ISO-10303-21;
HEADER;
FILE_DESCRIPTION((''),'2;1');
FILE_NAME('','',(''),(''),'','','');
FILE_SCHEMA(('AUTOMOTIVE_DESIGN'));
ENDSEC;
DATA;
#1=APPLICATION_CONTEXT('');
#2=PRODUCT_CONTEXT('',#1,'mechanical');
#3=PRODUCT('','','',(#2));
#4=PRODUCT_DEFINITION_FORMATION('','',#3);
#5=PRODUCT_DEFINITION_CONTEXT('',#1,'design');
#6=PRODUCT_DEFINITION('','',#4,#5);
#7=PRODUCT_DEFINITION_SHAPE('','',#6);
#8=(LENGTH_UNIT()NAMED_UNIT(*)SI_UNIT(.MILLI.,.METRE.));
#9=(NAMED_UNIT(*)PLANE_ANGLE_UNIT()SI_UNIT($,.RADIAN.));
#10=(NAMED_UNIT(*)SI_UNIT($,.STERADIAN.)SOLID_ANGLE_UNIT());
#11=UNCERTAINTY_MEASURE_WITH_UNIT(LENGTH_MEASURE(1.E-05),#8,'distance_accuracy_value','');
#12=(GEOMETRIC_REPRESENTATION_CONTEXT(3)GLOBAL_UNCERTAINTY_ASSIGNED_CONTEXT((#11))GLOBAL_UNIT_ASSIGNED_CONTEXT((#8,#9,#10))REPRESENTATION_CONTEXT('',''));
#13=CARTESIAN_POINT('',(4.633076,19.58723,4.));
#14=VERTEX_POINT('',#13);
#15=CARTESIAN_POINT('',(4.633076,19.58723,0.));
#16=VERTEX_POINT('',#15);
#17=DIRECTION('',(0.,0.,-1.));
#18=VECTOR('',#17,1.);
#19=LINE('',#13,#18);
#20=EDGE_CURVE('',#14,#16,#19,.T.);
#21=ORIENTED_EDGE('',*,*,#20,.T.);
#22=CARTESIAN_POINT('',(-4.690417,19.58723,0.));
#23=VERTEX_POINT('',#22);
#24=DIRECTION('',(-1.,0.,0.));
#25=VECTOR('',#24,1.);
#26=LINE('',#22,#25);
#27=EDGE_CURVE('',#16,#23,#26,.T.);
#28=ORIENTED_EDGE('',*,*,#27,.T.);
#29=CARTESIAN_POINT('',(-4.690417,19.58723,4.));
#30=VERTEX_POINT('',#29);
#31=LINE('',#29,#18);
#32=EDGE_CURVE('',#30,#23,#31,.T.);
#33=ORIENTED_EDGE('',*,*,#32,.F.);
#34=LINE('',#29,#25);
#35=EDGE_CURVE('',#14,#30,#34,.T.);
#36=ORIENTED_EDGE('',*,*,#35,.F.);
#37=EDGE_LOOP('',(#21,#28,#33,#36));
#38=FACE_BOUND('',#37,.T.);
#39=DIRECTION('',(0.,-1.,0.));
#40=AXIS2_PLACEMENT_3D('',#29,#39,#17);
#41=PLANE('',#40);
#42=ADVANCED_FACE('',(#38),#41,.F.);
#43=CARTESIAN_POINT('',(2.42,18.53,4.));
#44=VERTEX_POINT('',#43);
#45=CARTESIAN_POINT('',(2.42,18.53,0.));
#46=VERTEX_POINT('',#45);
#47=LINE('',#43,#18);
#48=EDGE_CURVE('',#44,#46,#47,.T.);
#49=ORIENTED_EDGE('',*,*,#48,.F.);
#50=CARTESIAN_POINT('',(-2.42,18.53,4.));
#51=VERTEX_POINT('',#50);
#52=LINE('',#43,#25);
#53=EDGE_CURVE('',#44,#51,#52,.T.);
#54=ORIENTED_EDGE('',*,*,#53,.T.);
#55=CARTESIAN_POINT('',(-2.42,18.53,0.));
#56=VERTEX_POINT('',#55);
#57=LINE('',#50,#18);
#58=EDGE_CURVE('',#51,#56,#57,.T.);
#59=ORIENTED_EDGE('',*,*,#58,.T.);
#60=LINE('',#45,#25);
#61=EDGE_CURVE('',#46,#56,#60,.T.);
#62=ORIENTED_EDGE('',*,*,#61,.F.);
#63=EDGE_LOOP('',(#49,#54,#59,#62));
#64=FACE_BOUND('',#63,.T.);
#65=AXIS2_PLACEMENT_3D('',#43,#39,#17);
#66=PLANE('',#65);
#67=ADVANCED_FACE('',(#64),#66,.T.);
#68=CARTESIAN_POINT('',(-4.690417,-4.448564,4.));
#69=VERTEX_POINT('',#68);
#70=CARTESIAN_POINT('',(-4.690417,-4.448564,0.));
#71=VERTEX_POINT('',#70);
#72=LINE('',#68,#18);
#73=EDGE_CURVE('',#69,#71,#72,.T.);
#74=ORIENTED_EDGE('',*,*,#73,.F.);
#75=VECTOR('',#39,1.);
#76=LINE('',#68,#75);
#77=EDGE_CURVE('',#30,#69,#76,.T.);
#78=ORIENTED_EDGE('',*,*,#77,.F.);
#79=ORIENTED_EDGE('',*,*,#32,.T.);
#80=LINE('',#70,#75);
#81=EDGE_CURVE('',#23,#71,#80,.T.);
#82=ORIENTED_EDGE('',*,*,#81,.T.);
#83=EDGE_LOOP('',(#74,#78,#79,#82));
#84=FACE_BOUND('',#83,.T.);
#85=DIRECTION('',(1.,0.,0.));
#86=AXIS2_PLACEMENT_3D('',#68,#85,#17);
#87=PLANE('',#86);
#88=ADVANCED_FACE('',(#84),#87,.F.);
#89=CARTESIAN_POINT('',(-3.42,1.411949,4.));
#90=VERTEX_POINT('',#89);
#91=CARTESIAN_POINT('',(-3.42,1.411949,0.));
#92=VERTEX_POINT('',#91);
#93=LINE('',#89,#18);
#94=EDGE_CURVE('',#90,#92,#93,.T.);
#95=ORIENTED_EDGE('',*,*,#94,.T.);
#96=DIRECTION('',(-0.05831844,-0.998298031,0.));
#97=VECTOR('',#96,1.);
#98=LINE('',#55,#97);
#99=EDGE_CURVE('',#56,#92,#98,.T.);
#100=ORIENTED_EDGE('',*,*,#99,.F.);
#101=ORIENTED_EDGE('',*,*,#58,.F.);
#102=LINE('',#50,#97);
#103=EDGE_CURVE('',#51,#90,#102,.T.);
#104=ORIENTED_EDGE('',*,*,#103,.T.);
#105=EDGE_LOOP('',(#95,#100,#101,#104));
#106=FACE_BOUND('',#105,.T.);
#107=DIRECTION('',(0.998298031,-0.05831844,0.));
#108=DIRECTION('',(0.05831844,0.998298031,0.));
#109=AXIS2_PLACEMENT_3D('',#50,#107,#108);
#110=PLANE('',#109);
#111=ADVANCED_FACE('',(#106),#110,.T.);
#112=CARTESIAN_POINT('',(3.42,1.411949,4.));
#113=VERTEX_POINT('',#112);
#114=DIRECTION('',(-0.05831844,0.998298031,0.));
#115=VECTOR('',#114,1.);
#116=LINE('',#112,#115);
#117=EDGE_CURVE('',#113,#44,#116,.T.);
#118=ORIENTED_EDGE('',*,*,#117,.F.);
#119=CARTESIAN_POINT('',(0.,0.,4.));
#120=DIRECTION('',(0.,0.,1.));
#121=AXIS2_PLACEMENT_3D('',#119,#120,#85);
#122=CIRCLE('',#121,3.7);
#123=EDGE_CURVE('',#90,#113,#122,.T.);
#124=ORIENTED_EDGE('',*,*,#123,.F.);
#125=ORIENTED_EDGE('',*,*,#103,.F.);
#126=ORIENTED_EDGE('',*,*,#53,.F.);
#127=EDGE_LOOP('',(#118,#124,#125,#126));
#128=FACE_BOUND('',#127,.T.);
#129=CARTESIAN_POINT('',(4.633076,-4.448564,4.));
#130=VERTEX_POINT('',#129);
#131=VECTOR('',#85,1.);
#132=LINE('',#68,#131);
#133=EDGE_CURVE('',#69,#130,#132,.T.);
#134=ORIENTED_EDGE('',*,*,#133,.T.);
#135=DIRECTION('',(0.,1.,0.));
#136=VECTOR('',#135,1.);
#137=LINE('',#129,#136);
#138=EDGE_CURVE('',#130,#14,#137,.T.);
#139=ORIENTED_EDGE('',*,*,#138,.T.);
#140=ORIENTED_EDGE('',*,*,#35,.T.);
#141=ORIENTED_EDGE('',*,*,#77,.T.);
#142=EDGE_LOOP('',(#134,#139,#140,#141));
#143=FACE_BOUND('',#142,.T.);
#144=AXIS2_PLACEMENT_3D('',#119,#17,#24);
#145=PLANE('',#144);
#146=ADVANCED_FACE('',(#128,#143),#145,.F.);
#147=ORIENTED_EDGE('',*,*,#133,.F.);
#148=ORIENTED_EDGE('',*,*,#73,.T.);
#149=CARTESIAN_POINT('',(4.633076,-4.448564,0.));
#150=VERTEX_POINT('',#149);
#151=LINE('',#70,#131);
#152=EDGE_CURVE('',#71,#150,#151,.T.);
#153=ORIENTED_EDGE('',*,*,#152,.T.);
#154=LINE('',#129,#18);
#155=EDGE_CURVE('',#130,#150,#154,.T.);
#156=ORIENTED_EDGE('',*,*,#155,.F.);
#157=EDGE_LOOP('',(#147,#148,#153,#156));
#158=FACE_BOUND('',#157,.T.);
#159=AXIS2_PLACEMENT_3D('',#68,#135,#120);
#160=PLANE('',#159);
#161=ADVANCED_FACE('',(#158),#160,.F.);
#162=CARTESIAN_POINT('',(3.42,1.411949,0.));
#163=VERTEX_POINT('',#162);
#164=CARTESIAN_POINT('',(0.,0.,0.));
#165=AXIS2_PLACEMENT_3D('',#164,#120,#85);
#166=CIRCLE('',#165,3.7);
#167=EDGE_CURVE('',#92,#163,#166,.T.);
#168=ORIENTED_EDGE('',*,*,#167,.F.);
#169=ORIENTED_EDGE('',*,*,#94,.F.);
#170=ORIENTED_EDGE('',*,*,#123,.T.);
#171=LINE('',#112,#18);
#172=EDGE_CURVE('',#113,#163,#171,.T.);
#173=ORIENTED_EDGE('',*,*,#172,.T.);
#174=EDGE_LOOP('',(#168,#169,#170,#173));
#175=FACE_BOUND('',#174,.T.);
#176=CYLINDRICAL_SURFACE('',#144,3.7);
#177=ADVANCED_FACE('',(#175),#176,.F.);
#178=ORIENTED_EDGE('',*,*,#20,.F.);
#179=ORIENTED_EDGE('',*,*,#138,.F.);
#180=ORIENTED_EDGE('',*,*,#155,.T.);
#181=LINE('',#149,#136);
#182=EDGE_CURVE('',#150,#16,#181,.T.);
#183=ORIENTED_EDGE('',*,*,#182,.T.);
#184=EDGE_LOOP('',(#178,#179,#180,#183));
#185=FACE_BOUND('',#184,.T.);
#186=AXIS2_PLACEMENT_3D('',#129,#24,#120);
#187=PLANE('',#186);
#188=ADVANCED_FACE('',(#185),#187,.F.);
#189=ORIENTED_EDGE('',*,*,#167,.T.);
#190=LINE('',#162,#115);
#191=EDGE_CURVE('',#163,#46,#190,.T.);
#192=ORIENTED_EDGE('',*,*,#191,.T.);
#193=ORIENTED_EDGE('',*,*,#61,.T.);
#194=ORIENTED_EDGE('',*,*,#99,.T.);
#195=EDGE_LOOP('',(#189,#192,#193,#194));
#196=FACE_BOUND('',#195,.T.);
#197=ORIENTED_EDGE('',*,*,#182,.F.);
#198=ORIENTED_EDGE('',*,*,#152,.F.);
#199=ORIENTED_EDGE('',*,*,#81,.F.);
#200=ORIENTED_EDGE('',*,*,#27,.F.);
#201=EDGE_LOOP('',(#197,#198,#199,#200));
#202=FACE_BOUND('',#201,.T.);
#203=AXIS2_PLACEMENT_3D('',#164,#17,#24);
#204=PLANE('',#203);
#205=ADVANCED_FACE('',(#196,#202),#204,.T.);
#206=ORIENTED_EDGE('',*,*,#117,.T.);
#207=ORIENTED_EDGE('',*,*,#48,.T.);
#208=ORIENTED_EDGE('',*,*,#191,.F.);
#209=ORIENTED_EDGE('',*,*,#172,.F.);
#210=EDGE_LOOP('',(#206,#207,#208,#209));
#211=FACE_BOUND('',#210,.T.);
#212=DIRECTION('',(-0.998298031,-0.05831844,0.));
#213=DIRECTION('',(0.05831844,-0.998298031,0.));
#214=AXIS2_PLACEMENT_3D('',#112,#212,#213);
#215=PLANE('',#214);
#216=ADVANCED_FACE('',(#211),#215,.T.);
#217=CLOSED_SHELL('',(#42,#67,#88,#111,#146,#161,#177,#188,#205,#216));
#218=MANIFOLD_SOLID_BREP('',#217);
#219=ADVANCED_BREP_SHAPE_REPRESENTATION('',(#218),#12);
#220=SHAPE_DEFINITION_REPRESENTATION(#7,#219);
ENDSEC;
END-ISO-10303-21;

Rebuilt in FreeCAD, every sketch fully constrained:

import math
import FreeCAD as App
import Part
import Sketcher
from FreeCAD import Vector


def add_polygon(sketch, points):
    """Adds a closed chain of lines whose ends are joined by coincident constraints."""
    first, n = sketch.GeometryCount, len(points)
    for a, b in zip(points, points[1:] + points[:1]):
        sketch.addGeometry(Part.LineSegment(App.Vector(*a, 0), App.Vector(*b, 0)), False)
    for i in range(n):
        sketch.addConstraint(Sketcher.Constraint("Coincident", first + i, 2, first + (i + 1) % n, 1))

doc = App.newDocument("Part")
params = doc.addObject("Spreadsheet::Sheet", "Params")
for row, (alias, value) in enumerate([
    ("sketch1_radius", "3.7 mm"),
    ("sketch1_width", "4.84 mm"),
    ("pad1_length", "4 mm"),
], start=1):
    params.set(f"A{row}", alias)
    params.set(f"B{row}", "=" + value)
    params.setAlias(f"B{row}", alias)

body = doc.addObject("PartDesign::Body", "Body")

# Sketch on XY plane
sketch1 = body.newObject("Sketcher::SketchObject", "Sketch")
sketch1.AttachmentSupport = (doc.getObject("XY_Plane"), [""])
sketch1.MapMode = "FlatFace"
add_polygon(sketch1, [(-4.7, 19.6), (-4.7, -4.4), (4.6, -4.4), (4.6, 19.6)])  # lines 0-3
sketch1.addGeometry(Part.LineSegment(Vector(-2.4, 18.5, 0), Vector(2.4, 18.5, 0)), False)  # 4
sketch1.addGeometry(Part.LineSegment(Vector(2.4, 18.5, 0), Vector(3.4, 1.4, 0)), False)  # 5
sketch1.addGeometry(Part.ArcOfCircle(Part.Circle(Vector(0, 0, 0), Vector(0, 0, 1), 3.7), math.radians(158), math.radians(382)), False)  # 6
sketch1.addGeometry(Part.LineSegment(Vector(-3.4, 1.4, 0), Vector(-2.4, 18.5, 0)), False)  # 7
sketch1.addConstraint([
    Sketcher.Constraint("Coincident", 4, 2, 5, 1),
    Sketcher.Constraint("Coincident", 5, 2, 6, 2),
    Sketcher.Constraint("Coincident", 6, 1, 7, 1),
    Sketcher.Constraint("Coincident", 7, 2, 4, 1),
    Sketcher.Constraint("Vertical", 0),
    Sketcher.Constraint("Horizontal", 1),
    Sketcher.Constraint("Vertical", 2),
    Sketcher.Constraint("Horizontal", 3),
    Sketcher.Constraint("Horizontal", 4),
    Sketcher.Constraint("Coincident", 6, 3, -1, 1),
    Sketcher.Constraint("Horizontal", 5, 2, 6, 1),
    Sketcher.Constraint("Equal", 5, 7),
    Sketcher.Constraint("Radius", 6, 3.7),
    Sketcher.Constraint("DistanceX", 4, 2, 5, 2, 1.0),
    Sketcher.Constraint("DistanceX", 4, 1, 4, 2, 4.84),
    Sketcher.Constraint("DistanceY", -1, 1, 4, 2, 18.53),
    Sketcher.Constraint("DistanceX", 1, 1, 1, 2, 9.323493),
    Sketcher.Constraint("DistanceY", 0, 2, 0, 1, 24.035794),
    Sketcher.Constraint("DistanceY", -1, 1, 2, 2, 19.58723),
    Sketcher.Constraint("DistanceX", 0, 2, -1, 1, 4.690417),
])
sketch1.setExpression("Constraints[16]", "Params.sketch1_radius")
sketch1.setExpression("Constraints[18]", "Params.sketch1_width")
pad1 = body.newObject("PartDesign::Pad", "Pad")
pad1.Profile = sketch1
pad1.setExpression("Length", "Params.pad1_length")

doc.recompute()
